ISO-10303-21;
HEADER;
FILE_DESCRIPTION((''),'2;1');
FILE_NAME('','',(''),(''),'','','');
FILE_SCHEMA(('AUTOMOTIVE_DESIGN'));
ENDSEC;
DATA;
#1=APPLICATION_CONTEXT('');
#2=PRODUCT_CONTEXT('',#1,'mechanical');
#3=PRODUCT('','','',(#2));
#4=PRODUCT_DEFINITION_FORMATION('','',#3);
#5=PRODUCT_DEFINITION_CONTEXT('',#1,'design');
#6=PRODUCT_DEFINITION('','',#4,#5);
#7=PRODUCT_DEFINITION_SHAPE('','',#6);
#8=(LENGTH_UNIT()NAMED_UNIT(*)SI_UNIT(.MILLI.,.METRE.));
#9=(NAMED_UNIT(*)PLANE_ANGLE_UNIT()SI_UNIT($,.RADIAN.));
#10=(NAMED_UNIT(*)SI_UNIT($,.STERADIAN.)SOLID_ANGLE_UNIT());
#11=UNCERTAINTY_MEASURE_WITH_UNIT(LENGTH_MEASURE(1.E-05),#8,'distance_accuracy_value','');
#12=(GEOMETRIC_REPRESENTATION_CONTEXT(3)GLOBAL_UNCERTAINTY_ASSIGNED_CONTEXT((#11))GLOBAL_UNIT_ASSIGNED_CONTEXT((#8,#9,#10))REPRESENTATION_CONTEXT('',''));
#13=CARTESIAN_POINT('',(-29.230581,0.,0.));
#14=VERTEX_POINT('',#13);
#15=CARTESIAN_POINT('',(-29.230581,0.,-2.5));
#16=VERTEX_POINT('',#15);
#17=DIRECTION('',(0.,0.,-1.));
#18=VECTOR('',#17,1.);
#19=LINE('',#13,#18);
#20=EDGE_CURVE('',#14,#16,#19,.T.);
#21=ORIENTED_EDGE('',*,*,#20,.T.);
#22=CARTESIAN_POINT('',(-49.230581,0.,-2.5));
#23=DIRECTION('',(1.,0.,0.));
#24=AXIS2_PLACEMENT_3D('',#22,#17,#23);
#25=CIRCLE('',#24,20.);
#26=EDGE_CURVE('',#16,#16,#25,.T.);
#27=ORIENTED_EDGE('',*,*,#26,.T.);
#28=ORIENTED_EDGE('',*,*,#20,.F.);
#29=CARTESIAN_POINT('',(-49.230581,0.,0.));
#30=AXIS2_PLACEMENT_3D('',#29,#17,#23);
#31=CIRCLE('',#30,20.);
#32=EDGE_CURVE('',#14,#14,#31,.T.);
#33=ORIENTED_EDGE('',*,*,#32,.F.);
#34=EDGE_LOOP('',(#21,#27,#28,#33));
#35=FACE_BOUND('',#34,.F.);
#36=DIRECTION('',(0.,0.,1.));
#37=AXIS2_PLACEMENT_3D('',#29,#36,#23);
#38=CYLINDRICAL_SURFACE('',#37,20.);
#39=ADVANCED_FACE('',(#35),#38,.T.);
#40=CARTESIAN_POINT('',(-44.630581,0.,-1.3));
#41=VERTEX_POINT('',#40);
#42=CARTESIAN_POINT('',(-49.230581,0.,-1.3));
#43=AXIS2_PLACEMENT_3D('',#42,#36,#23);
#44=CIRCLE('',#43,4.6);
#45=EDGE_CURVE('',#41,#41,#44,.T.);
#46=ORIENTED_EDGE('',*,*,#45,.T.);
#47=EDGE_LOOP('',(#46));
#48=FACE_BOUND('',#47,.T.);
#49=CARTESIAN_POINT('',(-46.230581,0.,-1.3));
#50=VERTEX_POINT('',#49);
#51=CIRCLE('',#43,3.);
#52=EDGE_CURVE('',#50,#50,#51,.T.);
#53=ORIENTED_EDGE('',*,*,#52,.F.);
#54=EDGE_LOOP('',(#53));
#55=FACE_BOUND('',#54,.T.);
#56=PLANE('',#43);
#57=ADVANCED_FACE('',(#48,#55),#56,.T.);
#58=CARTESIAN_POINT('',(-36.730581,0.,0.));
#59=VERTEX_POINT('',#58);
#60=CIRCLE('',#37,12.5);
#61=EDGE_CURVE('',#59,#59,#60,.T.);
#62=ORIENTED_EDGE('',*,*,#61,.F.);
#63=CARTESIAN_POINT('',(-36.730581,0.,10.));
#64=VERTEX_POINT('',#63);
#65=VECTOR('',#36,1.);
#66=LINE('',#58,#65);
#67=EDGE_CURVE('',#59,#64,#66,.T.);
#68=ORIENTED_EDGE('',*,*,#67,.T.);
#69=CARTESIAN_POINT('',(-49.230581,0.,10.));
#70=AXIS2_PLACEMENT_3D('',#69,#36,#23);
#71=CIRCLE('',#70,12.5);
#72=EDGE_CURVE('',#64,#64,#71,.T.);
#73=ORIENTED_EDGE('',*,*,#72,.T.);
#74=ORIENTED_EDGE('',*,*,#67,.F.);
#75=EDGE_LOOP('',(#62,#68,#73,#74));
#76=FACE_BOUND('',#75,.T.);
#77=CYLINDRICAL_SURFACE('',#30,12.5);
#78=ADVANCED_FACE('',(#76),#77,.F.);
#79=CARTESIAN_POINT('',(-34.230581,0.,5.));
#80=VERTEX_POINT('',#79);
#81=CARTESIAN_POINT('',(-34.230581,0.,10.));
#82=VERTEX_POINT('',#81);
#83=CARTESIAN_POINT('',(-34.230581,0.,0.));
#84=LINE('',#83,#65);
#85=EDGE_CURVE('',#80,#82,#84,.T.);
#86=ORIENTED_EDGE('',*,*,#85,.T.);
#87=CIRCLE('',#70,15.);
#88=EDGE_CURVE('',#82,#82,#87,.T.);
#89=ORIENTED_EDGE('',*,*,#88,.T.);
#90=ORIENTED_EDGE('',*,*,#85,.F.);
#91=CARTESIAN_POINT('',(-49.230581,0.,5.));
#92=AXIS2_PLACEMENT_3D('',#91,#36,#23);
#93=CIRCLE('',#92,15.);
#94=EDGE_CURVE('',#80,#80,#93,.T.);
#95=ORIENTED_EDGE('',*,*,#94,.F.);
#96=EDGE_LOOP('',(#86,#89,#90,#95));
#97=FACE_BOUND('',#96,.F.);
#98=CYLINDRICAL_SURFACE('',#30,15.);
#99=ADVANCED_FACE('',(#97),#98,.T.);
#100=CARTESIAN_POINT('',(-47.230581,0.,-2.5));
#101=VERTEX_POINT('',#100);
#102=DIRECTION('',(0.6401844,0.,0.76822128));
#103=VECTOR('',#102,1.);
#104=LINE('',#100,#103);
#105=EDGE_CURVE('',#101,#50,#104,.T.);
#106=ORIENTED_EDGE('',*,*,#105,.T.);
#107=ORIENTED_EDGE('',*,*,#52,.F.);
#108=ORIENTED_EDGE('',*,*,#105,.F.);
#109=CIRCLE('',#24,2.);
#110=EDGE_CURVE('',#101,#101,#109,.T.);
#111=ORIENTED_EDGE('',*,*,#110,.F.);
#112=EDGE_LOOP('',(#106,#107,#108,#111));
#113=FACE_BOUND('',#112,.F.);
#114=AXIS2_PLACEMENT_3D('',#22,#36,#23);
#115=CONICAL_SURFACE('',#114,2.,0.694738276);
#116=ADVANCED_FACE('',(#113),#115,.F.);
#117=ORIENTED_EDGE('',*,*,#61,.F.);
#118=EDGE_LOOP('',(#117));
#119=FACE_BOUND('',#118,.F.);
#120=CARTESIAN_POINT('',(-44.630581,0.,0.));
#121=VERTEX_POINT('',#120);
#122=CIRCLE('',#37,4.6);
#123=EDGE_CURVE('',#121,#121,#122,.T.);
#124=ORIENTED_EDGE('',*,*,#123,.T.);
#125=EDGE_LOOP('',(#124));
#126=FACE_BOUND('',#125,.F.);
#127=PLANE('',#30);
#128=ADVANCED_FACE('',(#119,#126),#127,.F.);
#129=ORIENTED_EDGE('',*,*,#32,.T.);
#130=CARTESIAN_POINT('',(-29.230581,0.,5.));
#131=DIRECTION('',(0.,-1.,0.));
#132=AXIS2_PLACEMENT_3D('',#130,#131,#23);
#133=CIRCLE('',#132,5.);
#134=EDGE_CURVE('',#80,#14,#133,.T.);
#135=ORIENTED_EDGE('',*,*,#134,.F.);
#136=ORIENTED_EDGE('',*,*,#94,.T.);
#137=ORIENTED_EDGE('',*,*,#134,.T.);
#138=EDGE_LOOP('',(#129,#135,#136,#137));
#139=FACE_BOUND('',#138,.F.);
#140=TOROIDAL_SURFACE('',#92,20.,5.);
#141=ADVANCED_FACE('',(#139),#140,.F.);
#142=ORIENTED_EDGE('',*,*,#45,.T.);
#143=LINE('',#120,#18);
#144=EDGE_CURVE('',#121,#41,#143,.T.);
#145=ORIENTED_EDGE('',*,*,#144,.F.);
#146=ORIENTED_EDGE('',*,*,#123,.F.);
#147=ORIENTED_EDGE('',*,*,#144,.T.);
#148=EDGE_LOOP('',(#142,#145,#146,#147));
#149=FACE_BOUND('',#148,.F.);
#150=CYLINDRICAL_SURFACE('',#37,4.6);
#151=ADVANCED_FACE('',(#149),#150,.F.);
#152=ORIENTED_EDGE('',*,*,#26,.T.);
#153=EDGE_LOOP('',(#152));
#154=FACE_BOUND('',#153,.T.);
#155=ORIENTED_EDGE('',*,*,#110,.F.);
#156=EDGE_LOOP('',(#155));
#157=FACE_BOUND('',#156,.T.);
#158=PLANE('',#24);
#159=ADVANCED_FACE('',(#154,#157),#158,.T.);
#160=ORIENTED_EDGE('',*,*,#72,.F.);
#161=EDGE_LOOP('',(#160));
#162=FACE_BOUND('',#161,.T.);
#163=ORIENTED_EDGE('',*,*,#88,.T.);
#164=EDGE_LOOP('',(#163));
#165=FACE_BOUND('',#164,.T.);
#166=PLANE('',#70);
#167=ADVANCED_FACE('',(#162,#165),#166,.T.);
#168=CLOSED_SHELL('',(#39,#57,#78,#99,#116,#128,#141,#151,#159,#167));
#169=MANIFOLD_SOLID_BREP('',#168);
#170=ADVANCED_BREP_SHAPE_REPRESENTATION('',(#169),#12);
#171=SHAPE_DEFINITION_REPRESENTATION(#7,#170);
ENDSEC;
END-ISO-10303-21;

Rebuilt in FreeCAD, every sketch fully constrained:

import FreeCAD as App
import Part
import Sketcher
from FreeCAD import Vector


def add_polygon(sketch, points):
    """Adds a closed chain of lines whose ends are joined by coincident constraints."""
    first, n = sketch.GeometryCount, len(points)
    for a, b in zip(points, points[1:] + points[:1]):
        sketch.addGeometry(Part.LineSegment(App.Vector(*a, 0), App.Vector(*b, 0)), False)
    for i in range(n):
        sketch.addConstraint(Sketcher.Constraint("Coincident", first + i, 2, first + (i + 1) % n, 1))

doc = App.newDocument("Part")
body = doc.addObject("PartDesign::Body", "Body")

sketch1 = body.newObject("Sketcher::SketchObject", "Sketch")
sketch1.AttachmentSupport = (doc.getObject("XY_Plane"), [""])
sketch1.MapMode = "FlatFace"
sketch1.addGeometry(Part.Circle(Vector(0, 0, 0), Vector(0, 0, 1), 12), False)
sketch1.addConstraint([
    Sketcher.Constraint("Coincident", 0, 3, -1, 1),
    Sketcher.Constraint("Diameter", 0, 25.0),
])
pad1 = body.newObject("PartDesign::Pad", "Pad")
pad1.Profile = sketch1
pad1.Length = 10
body2 = doc.addObject("PartDesign::Body", "Body001")

sketch2 = body2.newObject("Sketcher::SketchObject", "Sketch001")
sketch2.AttachmentSupport = (doc.getObject("XY_Plane001"), [""])
sketch2.MapMode = "FlatFace"
sketch2.addGeometry(Part.Circle(Vector(0, 0, 0), Vector(0, 0, 1), 15), False)
sketch2.addConstraint([
    Sketcher.Constraint("Coincident", 0, 3, -1, 1),
    Sketcher.Constraint("Diameter", 0, 30.0),
])
pad2 = body2.newObject("PartDesign::Pad", "Pad001")
pad2.Profile = sketch2
pad2.Length = 10
doc.recompute()

boolean = body2.newObject("PartDesign::Boolean", "Boolean")
boolean.Type = "Cut"
boolean.addObjects([body])
body3 = doc.addObject("PartDesign::Body", "Body002")

sketch3 = body3.newObject("Sketcher::SketchObject", "Sketch002")
sketch3.AttachmentSupport = (doc.getObject("XZ_Plane002"), [""])
sketch3.MapMode = "FlatFace"
sketch3.addGeometry(Part.Circle(Vector(20, 5, 0), Vector(0, 0, 1), 5), False)
sketch3.addConstraint([
    Sketcher.Constraint("Diameter", 0, 10.0),
    Sketcher.Constraint("DistanceX", -1, 1, 0, 3, 20.0),
    Sketcher.Constraint("DistanceY", -1, 1, 0, 3, 5.0),
])
revolution = body3.newObject("PartDesign::Revolution", "Revolution")
revolution.Profile = sketch3
revolution.ReferenceAxis = (sketch3, ["V_Axis"])
revolution.Angle = 360
body4 = doc.addObject("PartDesign::Body", "Body003")

sketch4 = body4.newObject("Sketcher::SketchObject", "Sketch003")
sketch4.AttachmentSupport = (doc.getObject("XY_Plane003"), [""])
sketch4.MapMode = "FlatFace"
sketch4.addGeometry([
    Part.Circle(Vector(0, 0, 0), Vector(0, 0, 1), 20),
    Part.Circle(Vector(0, 0, 0), Vector(0, 0, 1), 15),
], False)
sketch4.addConstraint([
    Sketcher.Constraint("Coincident", 0, 3, -1, 1),
    Sketcher.Constraint("Coincident", 1, 3, -1, 1),
    Sketcher.Constraint("Diameter", 0, 40.0),
    Sketcher.Constraint("Diameter", 1, 30.0),
])
pad3 = body4.newObject("PartDesign::Pad", "Pad002")
pad3.Profile = sketch4
pad3.Length = 5
doc.recompute()

boolean2 = body4.newObject("PartDesign::Boolean", "Boolean001")
boolean2.Type = "Cut"
boolean2.addObjects([body3])
doc.recompute()

boolean3 = body4.newObject("PartDesign::Boolean", "Boolean002")
boolean3.Type = "Fuse"
boolean3.addObjects([body2])
body5 = doc.addObject("PartDesign::Body", "Body004")

sketch5 = body5.newObject("Sketcher::SketchObject", "Sketch004")
sketch5.AttachmentSupport = (doc.getObject("XZ_Plane004"), [""])
sketch5.MapMode = "FlatFace"
add_polygon(sketch5, [(0, -2.5), (2, -2.5), (3, -1.3), (0, -1.3)])
sketch5.addConstraint([
    Sketcher.Constraint("Horizontal", 0),
    Sketcher.Constraint("Horizontal", 2),
    Sketcher.Constraint("Vertical", 3),
    Sketcher.Constraint("PointOnObject", 2, 2, -2),
    Sketcher.Constraint("DistanceX", 0, 1, 0, 2, 2.0),
    Sketcher.Constraint("DistanceX", 2, 2, 2, 1, 3.0),
    Sketcher.Constraint("DistanceY", 3, 2, 3, 1, 1.2),
    Sketcher.Constraint("DistanceY", 0, 2, -1, 1, 2.5),
])
revolution2 = body5.newObject("PartDesign::Revolution", "Revolution001")
revolution2.Profile = sketch5
revolution2.ReferenceAxis = (sketch5, ["V_Axis"])
revolution2.Angle = 360
body6 = doc.addObject("PartDesign::Body", "Body005")

sketch6 = body6.newObject("Sketcher::SketchObject", "Sketch005")
sketch6.AttachmentSupport = (doc.getObject("XY_Plane005"), [""])
sketch6.MapMode = "FlatFace"
sketch6.addGeometry(Part.Circle(Vector(0, 0, 0), Vector(0, 0, 1), 4.6), False)
sketch6.addConstraint([
    Sketcher.Constraint("Coincident", 0, 3, -1, 1),
    Sketcher.Constraint("Diameter", 0, 9.2),
])
pad4 = body6.newObject("PartDesign::Pad", "Pad003")
pad4.Profile = sketch6
pad4.Length = 1.3
pad4.Reversed = True
body7 = doc.addObject("PartDesign::Body", "Body006")

sketch7 = body7.newObject("Sketcher::SketchObject", "Sketch006")
sketch7.AttachmentSupport = (doc.getObject("XY_Plane006"), [""])
sketch7.MapMode = "FlatFace"
sketch7.AttachmentOffset = App.Placement(Vector(0, 0, -2.5), App.Rotation())
sketch7.addGeometry(Part.Circle(Vector(0, 0, 0), Vector(0, 0, 1), 2), False)
sketch7.addConstraint([
    Sketcher.Constraint("Coincident", 0, 3, -1, 1),
    Sketcher.Constraint("Diameter", 0, 4.0),
])
pad5 = body7.newObject("PartDesign::Pad", "Pad004")
pad5.Profile = sketch7
pad5.Length = 42.073439
body8 = doc.addObject("PartDesign::Body", "Body007")

sketch8 = body8.newObject("Sketcher::SketchObject", "Sketch007")
sketch8.AttachmentSupport = (doc.getObject("XY_Plane007"), [""])
sketch8.MapMode = "FlatFace"
sketch8.addGeometry(Part.Circle(Vector(0, 0, 0), Vector(0, 0, 1), 20), False)
sketch8.addConstraint([
    Sketcher.Constraint("Coincident", 0, 3, -1, 1),
    Sketcher.Constraint("Diameter", 0, 40.0),
])
pad6 = body8.newObject("PartDesign::Pad", "Pad005")
pad6.Profile = sketch8
pad6.Length = 2.5
pad6.Reversed = True
doc.recompute()

boolean4 = body8.newObject("PartDesign::Boolean", "Boolean003")
boolean4.Type = "Cut"
boolean4.addObjects([body7])
doc.recompute()

boolean5 = body8.newObject("PartDesign::Boolean", "Boolean004")
boolean5.Type = "Cut"
boolean5.addObjects([body6])
doc.recompute()

boolean6 = body8.newObject("PartDesign::Boolean", "Boolean005")
boolean6.Type = "Cut"
boolean6.addObjects([body5])
doc.recompute()

boolean7 = body8.newObject("PartDesign::Boolean", "Boolean006")
boolean7.Type = "Fuse"
boolean7.addObjects([body4])
body9 = doc.addObject("PartDesign::Body", "Body008")
doc.recompute()

body8.Placement = App.Placement(Vector(-49.230581, 0, 0), App.Rotation(Vector(0, 0, 1), 0))
boolean8 = body9.newObject("PartDesign::Boolean", "Boolean007")
boolean8.Type = "Fuse"
boolean8.addObjects([body8])

doc.recompute()
